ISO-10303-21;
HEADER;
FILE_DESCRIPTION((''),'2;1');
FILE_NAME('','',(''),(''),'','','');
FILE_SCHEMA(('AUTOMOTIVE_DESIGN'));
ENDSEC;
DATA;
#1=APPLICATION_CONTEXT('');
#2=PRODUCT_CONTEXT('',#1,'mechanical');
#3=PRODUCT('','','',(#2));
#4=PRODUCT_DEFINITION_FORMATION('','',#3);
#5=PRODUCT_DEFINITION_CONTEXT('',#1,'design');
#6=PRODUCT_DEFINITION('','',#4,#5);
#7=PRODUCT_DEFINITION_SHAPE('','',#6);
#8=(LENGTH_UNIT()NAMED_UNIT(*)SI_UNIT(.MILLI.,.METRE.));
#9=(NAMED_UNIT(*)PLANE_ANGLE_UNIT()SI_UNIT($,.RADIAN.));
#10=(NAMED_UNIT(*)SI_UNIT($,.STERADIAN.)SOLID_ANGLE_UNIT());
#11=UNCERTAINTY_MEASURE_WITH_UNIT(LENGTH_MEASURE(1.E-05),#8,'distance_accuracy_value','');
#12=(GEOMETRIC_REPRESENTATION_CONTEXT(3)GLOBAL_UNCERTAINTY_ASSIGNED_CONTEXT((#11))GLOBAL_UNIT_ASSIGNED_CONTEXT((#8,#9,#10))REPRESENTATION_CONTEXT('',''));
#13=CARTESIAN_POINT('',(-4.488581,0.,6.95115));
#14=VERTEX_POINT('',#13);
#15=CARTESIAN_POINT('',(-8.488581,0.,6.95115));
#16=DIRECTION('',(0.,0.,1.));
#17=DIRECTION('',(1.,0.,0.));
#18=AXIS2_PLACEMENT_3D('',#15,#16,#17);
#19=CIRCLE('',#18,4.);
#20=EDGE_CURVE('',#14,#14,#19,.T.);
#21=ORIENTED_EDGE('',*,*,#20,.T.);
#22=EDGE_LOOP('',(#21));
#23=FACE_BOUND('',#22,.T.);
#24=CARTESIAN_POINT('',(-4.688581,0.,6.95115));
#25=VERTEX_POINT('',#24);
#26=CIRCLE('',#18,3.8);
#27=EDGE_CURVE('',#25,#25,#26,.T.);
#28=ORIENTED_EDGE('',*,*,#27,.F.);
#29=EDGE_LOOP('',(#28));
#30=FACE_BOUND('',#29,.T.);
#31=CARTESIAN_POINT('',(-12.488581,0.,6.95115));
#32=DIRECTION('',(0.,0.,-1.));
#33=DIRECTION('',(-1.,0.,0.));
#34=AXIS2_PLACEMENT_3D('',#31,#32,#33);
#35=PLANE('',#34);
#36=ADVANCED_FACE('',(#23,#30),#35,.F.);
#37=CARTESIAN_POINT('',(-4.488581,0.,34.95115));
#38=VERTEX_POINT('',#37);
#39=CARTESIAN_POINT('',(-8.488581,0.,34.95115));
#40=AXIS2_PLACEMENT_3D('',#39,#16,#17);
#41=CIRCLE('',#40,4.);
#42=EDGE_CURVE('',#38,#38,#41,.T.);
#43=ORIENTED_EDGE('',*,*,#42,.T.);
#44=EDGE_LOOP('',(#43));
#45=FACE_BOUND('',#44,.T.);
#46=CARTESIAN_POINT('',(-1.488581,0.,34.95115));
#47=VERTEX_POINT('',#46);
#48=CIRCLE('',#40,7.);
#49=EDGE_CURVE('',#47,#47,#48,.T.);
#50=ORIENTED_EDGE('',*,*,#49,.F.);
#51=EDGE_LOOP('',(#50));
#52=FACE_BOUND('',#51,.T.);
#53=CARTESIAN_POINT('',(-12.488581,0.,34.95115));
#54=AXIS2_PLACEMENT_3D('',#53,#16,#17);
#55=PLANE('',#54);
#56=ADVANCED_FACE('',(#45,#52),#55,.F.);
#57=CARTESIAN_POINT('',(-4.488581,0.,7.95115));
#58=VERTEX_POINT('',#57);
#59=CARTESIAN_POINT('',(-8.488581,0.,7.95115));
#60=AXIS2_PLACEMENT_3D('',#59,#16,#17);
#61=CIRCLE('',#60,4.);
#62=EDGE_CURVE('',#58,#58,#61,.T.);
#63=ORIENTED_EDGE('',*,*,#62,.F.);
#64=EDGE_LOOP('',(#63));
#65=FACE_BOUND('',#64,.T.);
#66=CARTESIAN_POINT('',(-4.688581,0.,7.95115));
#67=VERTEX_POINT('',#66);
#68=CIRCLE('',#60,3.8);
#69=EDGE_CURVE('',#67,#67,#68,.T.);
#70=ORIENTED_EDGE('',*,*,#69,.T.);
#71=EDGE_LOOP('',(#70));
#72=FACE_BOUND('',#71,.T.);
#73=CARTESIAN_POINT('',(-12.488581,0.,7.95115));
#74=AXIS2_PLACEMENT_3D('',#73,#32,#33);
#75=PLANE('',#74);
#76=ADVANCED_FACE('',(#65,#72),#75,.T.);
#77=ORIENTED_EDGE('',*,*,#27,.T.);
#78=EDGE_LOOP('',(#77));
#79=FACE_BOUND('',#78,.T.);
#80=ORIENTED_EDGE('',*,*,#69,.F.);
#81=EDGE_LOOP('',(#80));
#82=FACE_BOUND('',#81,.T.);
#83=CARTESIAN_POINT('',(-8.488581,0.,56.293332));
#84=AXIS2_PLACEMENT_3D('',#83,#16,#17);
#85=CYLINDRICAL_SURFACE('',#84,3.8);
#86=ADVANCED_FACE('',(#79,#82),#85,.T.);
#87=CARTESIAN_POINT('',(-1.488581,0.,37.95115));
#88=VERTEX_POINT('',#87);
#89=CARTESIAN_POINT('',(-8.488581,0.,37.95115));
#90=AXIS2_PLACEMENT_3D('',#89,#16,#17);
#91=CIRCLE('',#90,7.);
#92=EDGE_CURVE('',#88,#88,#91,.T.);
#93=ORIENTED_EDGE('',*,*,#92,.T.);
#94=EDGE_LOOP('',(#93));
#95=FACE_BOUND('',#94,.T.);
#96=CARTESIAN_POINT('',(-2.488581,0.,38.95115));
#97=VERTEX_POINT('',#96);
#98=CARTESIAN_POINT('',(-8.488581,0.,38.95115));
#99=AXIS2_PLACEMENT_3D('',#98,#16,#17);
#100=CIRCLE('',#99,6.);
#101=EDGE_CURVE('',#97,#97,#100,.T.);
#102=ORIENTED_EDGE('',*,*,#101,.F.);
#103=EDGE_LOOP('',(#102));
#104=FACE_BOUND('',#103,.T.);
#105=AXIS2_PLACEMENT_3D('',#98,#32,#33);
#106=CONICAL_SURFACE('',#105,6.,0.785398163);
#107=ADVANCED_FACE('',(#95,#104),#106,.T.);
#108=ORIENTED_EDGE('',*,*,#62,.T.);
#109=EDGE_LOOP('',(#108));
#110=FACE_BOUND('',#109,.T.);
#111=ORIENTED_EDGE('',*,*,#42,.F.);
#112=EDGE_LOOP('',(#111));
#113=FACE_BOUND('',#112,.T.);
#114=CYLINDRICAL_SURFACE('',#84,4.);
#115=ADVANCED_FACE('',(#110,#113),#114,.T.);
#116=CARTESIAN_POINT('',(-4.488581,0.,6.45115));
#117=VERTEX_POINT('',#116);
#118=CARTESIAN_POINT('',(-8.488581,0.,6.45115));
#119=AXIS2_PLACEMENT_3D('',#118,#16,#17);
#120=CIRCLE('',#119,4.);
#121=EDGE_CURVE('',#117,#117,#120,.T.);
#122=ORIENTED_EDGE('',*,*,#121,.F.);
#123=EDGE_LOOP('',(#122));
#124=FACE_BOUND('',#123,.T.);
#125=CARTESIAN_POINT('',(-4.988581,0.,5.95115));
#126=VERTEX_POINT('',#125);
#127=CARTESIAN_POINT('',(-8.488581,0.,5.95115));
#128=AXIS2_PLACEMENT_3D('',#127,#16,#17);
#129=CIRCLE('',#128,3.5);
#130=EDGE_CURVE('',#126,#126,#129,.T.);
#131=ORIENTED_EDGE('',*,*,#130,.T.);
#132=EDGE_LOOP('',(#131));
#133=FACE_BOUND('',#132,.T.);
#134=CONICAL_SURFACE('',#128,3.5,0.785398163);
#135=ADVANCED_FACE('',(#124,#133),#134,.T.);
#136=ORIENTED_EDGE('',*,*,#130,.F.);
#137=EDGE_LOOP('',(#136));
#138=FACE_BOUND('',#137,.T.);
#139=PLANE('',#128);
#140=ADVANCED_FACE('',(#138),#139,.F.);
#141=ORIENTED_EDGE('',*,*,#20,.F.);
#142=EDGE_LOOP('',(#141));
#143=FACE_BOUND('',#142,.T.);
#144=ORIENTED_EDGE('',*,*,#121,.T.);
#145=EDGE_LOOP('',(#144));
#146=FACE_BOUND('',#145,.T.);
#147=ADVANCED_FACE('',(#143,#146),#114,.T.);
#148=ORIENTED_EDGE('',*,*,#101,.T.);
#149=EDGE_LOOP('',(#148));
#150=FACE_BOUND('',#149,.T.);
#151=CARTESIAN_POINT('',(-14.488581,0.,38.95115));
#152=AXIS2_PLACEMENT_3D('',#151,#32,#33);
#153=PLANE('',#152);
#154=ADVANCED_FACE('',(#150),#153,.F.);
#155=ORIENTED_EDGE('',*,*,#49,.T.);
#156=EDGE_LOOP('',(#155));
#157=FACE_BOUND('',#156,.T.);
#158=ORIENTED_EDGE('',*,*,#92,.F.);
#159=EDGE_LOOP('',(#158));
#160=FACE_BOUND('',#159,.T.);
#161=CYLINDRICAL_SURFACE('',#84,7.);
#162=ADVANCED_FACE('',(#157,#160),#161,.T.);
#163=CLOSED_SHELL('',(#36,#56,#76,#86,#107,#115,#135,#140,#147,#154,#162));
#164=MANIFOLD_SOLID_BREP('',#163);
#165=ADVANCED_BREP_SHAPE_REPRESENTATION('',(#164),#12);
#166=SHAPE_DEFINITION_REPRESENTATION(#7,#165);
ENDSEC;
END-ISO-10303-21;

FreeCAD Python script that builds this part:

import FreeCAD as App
import Part
import Sketcher
Q = App.Units.Quantity


def add_polygon(sketch, points):
    """Adds a closed chain of lines whose ends are joined by coincident constraints."""
    first, n = sketch.GeometryCount, len(points)
    for a, b in zip(points, points[1:] + points[:1]):
        sketch.addGeometry(Part.LineSegment(App.Vector(*a, 0), App.Vector(*b, 0)), False)
    for i in range(n):
        sketch.addConstraint(Sketcher.Constraint("Coincident", first + i, 2, first + (i + 1) % n, 1))

doc = App.newDocument("Part")
params = doc.addObject("Spreadsheet::Sheet", "Params")
for row, (alias, value) in enumerate([
    ("sketch1_width", "6 mm"),
    ("sketch1_width2", "3 mm"),
    ("sketch1_height", "33 mm"),
    ("sketch1_height2", "1 mm"),
    ("sketch1_height3", "27 mm"),
    ("revolution_angle", "360 deg"),
], start=1):
    params.set(f"A{row}", alias)
    params.set(f"B{row}", "=" + value)
    params.setAlias(f"B{row}", alias)

body = doc.addObject("PartDesign::Body", "Body")

# Sketch on XZ plane
sketch1 = body.newObject("Sketcher::SketchObject", "Sketch")
sketch1.AttachmentSupport = (doc.getObject("XZ_Plane"), [""])
sketch1.MapMode = "FlatFace"
add_polygon(sketch1, [(-14.49, 38.95), (-8.49, 38.95), (-8.49, 5.95), (-11.99, 5.95), (-12.49, 6.45), (-12.49, 6.95), (-12.29, 6.95), (-12.29, 7.95), (-12.49, 7.95), (-12.49, 34.95), (-15.49, 34.95), (-15.49, 37.95)])  # lines 0-11
sketch1.addGeometry(Part.LineSegment(App.Vector(-8.49, 38.95, 0), App.Vector(-8.49, 5.95, 0)), True)  # axis
sketch1.addConstraint(Sketcher.Constraint("Horizontal", 0))
sketch1.addConstraint(Sketcher.Constraint("Vertical", 1))
sketch1.addConstraint(Sketcher.Constraint("Horizontal", 2))
sketch1.addConstraint(Sketcher.Constraint("Vertical", 4))
sketch1.addConstraint(Sketcher.Constraint("Horizontal", 5))
sketch1.addConstraint(Sketcher.Constraint("Vertical", 6))
sketch1.addConstraint(Sketcher.Constraint("Horizontal", 7))
sketch1.addConstraint(Sketcher.Constraint("Vertical", 8))
sketch1.addConstraint(Sketcher.Constraint("Horizontal", 9))
sketch1.addConstraint(Sketcher.Constraint("Vertical", 10))
sketch1.addConstraint(Sketcher.Constraint("Vertical", 12))
sketch1.addConstraint(Sketcher.Constraint("Coincident", 12, 1, 0, 2))
sketch1.addConstraint(Sketcher.Constraint("Perpendicular", 3, 11))
sketch1.addConstraint(Sketcher.Constraint("Horizontal", 2, 2, 12, 2))
sketch1.addConstraint(Sketcher.Constraint("Vertical", 4, 2, 7, 2))
sketch1.addConstraint(Sketcher.Constraint("Equal", 9, 10))
sketch1.addConstraint(Sketcher.Constraint("DistanceX", 0, 1, 0, 2, 6.0))
sketch1.addConstraint(Sketcher.Constraint("DistanceX", 9, 2, 9, 1, 3.0))
sketch1.addConstraint(Sketcher.Constraint("DistanceY", 1, 2, 1, 1, 33.0))
sketch1.addConstraint(Sketcher.Constraint("DistanceY", 6, 1, 6, 2, 1.0))
sketch1.addConstraint(Sketcher.Constraint("DistanceY", 8, 1, 8, 2, 27.0))
sketch1.addConstraint(Sketcher.Constraint("Angle", 3, Q("135 deg")))
sketch1.addConstraint(Sketcher.Constraint("DistanceX", 2, 2, 2, 1, 3.5))
sketch1.addConstraint(Sketcher.Constraint("DistanceX", 5, 1, 5, 2, 0.2))
sketch1.addConstraint(Sketcher.Constraint("DistanceY", 4, 1, 4, 2, 0.5))
sketch1.addConstraint(Sketcher.Constraint("DistanceX", 0, 2, -1, 1, 8.488581))
sketch1.addConstraint(Sketcher.Constraint("DistanceY", -1, 1, 0, 2, 38.95115))
sketch1.setExpression("Constraints[28]", "Params.sketch1_width")
sketch1.setExpression("Constraints[29]", "Params.sketch1_width2")
sketch1.setExpression("Constraints[30]", "Params.sketch1_height")
sketch1.setExpression("Constraints[31]", "Params.sketch1_height2")
sketch1.setExpression("Constraints[32]", "Params.sketch1_height3")
revolution = body.newObject("PartDesign::Revolution", "Revolution")
revolution.Profile = sketch1
revolution.ReferenceAxis = (sketch1, ["Axis0"])
revolution.setExpression("Angle", "Params.revolution_angle")

doc.recompute()
